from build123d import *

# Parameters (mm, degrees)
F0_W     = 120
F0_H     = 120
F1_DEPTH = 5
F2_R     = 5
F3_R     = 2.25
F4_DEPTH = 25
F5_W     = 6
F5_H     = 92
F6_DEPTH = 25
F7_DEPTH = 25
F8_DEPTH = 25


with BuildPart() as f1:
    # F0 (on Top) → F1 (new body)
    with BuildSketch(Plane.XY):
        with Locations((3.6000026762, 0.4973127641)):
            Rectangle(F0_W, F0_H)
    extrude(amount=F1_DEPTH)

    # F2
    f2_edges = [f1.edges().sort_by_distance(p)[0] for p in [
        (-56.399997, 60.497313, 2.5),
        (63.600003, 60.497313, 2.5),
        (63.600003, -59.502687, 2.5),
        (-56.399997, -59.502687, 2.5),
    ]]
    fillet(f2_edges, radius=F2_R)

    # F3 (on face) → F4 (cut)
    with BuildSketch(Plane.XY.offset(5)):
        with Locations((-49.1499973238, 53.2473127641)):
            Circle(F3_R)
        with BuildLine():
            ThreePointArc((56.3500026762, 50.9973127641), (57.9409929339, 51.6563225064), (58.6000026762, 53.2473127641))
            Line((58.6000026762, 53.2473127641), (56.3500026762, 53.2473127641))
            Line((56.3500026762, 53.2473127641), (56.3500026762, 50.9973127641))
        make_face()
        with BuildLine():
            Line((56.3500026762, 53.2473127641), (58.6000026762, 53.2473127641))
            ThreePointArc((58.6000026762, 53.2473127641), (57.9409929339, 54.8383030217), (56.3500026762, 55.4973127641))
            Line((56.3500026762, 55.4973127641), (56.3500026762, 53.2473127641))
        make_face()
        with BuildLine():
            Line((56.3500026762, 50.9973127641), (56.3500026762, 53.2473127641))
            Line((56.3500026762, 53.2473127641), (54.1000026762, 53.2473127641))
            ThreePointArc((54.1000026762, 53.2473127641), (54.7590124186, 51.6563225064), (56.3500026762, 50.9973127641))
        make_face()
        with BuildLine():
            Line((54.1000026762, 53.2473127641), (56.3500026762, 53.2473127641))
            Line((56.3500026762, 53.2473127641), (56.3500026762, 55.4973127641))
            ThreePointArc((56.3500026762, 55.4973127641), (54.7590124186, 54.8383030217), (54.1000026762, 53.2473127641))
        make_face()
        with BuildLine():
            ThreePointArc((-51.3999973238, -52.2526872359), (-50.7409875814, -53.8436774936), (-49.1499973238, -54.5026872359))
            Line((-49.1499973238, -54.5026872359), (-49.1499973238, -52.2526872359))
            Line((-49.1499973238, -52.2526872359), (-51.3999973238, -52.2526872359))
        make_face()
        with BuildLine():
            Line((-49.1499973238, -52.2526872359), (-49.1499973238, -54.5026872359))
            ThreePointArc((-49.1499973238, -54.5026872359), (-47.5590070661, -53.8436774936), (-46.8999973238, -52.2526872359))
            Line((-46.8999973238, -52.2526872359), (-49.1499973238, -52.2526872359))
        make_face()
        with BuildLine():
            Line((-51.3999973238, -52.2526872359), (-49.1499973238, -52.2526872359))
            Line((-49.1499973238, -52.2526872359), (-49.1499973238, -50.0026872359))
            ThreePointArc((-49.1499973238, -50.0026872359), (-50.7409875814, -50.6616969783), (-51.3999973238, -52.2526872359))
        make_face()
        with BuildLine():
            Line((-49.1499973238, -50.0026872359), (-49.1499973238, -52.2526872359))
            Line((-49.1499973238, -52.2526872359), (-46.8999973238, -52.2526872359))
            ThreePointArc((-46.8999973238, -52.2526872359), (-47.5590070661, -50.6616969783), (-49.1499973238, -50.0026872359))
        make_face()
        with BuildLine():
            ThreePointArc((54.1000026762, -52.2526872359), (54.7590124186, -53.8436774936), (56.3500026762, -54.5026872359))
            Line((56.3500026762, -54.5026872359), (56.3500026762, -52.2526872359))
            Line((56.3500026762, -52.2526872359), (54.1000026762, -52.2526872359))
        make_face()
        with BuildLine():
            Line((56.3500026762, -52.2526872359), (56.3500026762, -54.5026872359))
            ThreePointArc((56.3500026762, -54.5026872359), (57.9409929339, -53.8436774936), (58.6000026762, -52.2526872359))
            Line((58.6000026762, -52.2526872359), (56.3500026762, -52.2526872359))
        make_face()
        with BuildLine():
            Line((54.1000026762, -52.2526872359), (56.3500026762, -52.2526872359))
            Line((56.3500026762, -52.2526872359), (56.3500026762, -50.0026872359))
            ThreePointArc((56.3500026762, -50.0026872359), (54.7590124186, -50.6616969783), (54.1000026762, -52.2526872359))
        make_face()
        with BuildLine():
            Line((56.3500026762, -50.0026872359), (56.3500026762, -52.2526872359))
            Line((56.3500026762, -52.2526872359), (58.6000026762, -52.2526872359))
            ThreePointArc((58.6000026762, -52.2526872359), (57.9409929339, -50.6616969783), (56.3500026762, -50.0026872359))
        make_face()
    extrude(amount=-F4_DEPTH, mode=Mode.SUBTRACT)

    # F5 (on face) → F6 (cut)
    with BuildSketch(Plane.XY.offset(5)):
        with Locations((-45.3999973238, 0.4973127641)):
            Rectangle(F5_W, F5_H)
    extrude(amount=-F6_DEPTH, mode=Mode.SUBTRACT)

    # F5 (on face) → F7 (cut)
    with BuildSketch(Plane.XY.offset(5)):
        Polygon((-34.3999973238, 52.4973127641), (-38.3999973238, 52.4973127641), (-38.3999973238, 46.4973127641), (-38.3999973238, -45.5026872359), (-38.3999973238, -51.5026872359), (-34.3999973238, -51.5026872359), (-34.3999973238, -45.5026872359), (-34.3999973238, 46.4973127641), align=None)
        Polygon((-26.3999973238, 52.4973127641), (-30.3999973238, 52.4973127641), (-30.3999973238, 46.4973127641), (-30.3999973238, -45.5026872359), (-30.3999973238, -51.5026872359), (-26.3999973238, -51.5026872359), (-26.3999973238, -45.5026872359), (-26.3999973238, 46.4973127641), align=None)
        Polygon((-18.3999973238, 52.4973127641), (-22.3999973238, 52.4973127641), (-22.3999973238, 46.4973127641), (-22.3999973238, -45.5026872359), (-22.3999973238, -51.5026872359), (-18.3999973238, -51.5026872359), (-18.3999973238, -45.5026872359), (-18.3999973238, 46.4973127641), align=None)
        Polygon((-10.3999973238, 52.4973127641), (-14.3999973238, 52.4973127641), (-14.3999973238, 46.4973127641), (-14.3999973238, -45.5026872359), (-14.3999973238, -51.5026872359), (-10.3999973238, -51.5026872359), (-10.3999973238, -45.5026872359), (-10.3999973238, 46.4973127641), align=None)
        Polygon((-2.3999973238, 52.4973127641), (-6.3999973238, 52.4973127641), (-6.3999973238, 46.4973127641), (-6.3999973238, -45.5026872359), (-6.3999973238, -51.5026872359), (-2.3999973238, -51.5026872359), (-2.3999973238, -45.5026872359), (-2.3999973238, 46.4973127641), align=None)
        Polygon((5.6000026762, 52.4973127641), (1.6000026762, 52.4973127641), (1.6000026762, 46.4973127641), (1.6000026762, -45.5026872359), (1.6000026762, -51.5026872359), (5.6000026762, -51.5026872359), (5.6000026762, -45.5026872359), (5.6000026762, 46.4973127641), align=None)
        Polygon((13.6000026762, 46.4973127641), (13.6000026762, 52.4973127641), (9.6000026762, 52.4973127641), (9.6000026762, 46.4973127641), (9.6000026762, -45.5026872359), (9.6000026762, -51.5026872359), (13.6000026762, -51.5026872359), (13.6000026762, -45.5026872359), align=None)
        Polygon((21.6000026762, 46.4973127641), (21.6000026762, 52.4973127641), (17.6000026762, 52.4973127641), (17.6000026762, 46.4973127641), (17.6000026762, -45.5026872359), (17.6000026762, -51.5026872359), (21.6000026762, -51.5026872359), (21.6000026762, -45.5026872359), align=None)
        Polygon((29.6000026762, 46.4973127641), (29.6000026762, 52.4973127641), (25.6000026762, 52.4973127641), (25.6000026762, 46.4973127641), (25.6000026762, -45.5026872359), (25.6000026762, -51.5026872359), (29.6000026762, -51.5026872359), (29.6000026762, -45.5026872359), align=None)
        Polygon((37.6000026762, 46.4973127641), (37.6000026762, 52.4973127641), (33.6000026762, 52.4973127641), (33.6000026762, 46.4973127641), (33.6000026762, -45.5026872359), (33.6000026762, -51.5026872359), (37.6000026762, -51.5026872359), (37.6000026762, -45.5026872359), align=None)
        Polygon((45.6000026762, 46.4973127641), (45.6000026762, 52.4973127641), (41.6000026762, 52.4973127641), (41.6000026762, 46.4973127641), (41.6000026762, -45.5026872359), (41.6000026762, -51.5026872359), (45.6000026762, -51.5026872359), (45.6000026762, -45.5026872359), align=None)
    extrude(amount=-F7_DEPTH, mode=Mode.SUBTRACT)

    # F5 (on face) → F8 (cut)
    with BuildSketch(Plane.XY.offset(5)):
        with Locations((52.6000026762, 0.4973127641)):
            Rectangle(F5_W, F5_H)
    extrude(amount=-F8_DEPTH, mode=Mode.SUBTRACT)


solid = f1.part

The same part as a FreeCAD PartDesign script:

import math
import FreeCAD as App
import Part
import Sketcher

V = App.Vector
Q = App.Units.Quantity


def edges_at(feature, points):
    """Names of the edges that pass closest to the given points."""
    edges = feature.Shape.Edges
    near = lambda p: min(range(len(edges)), key=lambda i: edges[i].distToShape(Part.Vertex(*p))[0])
    return sorted({f"Edge{near(p) + 1}" for p in points})

doc = App.newDocument("Part")
body = doc.addObject("PartDesign::Body", "Body")

# Sketch on XY plane
sketch1 = body.newObject("Sketcher::SketchObject", "Sketch")
sketch1.AttachmentSupport = (doc.getObject("XY_Plane"), [""])
sketch1.MapMode = "FlatFace"
sketch1.addGeometry([
    Part.LineSegment(V(-56, 60, 0), V(-56, -60, 0)),
    Part.LineSegment(V(-56, -60, 0), V(64, -60, 0)),
    Part.LineSegment(V(64, -60, 0), V(64, 60, 0)),
    Part.LineSegment(V(64, 60, 0), V(-56, 60, 0)),
], False)
sketch1.addConstraint([
    Sketcher.Constraint("Coincident", 0, 2, 1, 1),
    Sketcher.Constraint("Coincident", 1, 2, 2, 1),
    Sketcher.Constraint("Coincident", 2, 2, 3, 1),
    Sketcher.Constraint("Coincident", 3, 2, 0, 1),
    Sketcher.Constraint("Vertical", 0),
    Sketcher.Constraint("Horizontal", 1),
    Sketcher.Constraint("Vertical", 2),
    Sketcher.Constraint("Horizontal", 3),
    Sketcher.Constraint("Equal", 3, 0),
    Sketcher.Constraint("DistanceX", 1, 1, 1, 2, Q("120 mm")),
    Sketcher.Constraint("DistanceX", 0, 2, -1, 1, Q("56.399997 mm")),
    Sketcher.Constraint("DistanceY", 0, 2, -1, 1, Q("59.502687 mm")),
])
pad1 = body.newObject("PartDesign::Pad", "Pad")
pad1.Profile = sketch1
pad1.Length = 5
doc.recompute()

fillet = body.newObject("PartDesign::Fillet", "Fillet")
fillet.Base = (pad1, edges_at(pad1, [
    (-56.4, 60.497, 2.5),
    (63.6, 60.497, 2.5),
    (63.6, -59.503, 2.5),
    (-56.4, -59.503, 2.5),
]))
fillet.Radius = 5

# Sketch on XY plane
sketch2 = body.newObject("Sketcher::SketchObject", "Sketch001")
sketch2.AttachmentSupport = (doc.getObject("XY_Plane"), [""])
sketch2.MapMode = "FlatFace"
sketch2.AttachmentOffset = App.Placement(V(0, 0, 5), App.Rotation())
sketch2.addGeometry([
    Part.Circle(V(-49.1, 53.2, 0), V(0, 0, 1), 2.2),  # 0
    Part.ArcOfCircle(Part.Circle(V(56.4, 53.2, 0), V(0, 0, 1), 2.2), math.radians(-90), math.radians(0)),  # 1
    Part.ArcOfCircle(Part.Circle(V(56.4, 53.2, 0), V(0, 0, 1), 2.2), math.radians(0), math.radians(90)),  # 2
    Part.ArcOfCircle(Part.Circle(V(56.4, 53.2, 0), V(0, 0, 1), 2.2), math.radians(90), math.radians(180)),  # 3
    Part.ArcOfCircle(Part.Circle(V(56.4, 53.2, 0), V(0, 0, 1), 2.2), math.radians(180), math.radians(270)),  # 4
    Part.ArcOfCircle(Part.Circle(V(-49.1, -52.3, 0), V(0, 0, 1), 2.2), math.radians(180), math.radians(270)),  # 5
    Part.ArcOfCircle(Part.Circle(V(-49.1, -52.3, 0), V(0, 0, 1), 2.2), math.radians(-90), math.radians(0)),  # 6
    Part.ArcOfCircle(Part.Circle(V(-49.1, -52.3, 0), V(0, 0, 1), 2.2), math.radians(0), math.radians(90)),  # 7
    Part.ArcOfCircle(Part.Circle(V(-49.1, -52.3, 0), V(0, 0, 1), 2.2), math.radians(90), math.radians(180)),  # 8
    Part.ArcOfCircle(Part.Circle(V(56.4, -52.3, 0), V(0, 0, 1), 2.2), math.radians(180), math.radians(270)),  # 9
    Part.ArcOfCircle(Part.Circle(V(56.4, -52.3, 0), V(0, 0, 1), 2.2), math.radians(-90), math.radians(0)),  # 10
    Part.ArcOfCircle(Part.Circle(V(56.4, -52.3, 0), V(0, 0, 1), 2.2), math.radians(0), math.radians(90)),  # 11
    Part.ArcOfCircle(Part.Circle(V(56.4, -52.3, 0), V(0, 0, 1), 2.2), math.radians(90), math.radians(180)),  # 12
], False)
sketch2.addConstraint([
    Sketcher.Constraint("Tangent", 1, 2, 2, 1),
    Sketcher.Constraint("Tangent", 2, 2, 3, 1),
    Sketcher.Constraint("Tangent", 3, 2, 4, 1),
    Sketcher.Constraint("Tangent", 4, 2, 1, 1),
    Sketcher.Constraint("Tangent", 5, 2, 6, 1),
    Sketcher.Constraint("Tangent", 6, 2, 7, 1),
    Sketcher.Constraint("Tangent", 7, 2, 8, 1),
    Sketcher.Constraint("Tangent", 8, 2, 5, 1),
    Sketcher.Constraint("Tangent", 9, 2, 10, 1),
    Sketcher.Constraint("Tangent", 10, 2, 11, 1),
    Sketcher.Constraint("Tangent", 11, 2, 12, 1),
    Sketcher.Constraint("Tangent", 12, 2, 9, 1),
    Sketcher.Constraint("Equal", 0, 1),
    Sketcher.Constraint("Equal", 1, 2),
    Sketcher.Constraint("Equal", 4, 5),
    Sketcher.Constraint("Equal", 5, 6),
    Sketcher.Constraint("Equal", 8, 9),
    Sketcher.Constraint("Equal", 9, 10),
    Sketcher.Constraint("Horizontal", 0, 3, 1, 3),
    Sketcher.Constraint("Horizontal", 8, 3, 9, 3),
    Sketcher.Constraint("Horizontal", 4, 3, 1, 2),
    Sketcher.Constraint("Horizontal", 1, 2, 3, 2),
    Sketcher.Constraint("Horizontal", 12, 3, 6, 2),
    Sketcher.Constraint("Horizontal", 6, 2, 8, 2),
    Sketcher.Constraint("Horizontal", 8, 2, 10, 2),
    Sketcher.Constraint("Horizontal", 10, 2, 12, 2),
    Sketcher.Constraint("Vertical", 0, 3, 5, 3),
    Sketcher.Constraint("Vertical", 4, 3, 9, 3),
    Sketcher.Constraint("Vertical", 12, 3, 2, 2),
    Sketcher.Constraint("Vertical", 2, 2, 4, 2),
    Sketcher.Constraint("Vertical", 8, 3, 5, 2),
    Sketcher.Constraint("Vertical", 5, 2, 7, 2),
    Sketcher.Constraint("Vertical", 4, 2, 9, 2),
    Sketcher.Constraint("Vertical", 9, 2, 11, 2),
    Sketcher.Constraint("Diameter", 0, Q("4.5 mm")),
    Sketcher.Constraint("DistanceX", 0, 3, 1, 3, Q("105.5 mm")),
    Sketcher.Constraint("DistanceY", 5, 3, 0, 3, Q("105.5 mm")),
    Sketcher.Constraint("DistanceX", 0, 3, -1, 1, Q("49.149997 mm")),
    Sketcher.Constraint("DistanceY", -1, 1, 0, 3, Q("53.247313 mm")),
])
pocket1 = body.newObject("PartDesign::Pocket", "Pocket")
pocket1.Profile = sketch2
pocket1.Length = 25

# Sketch on XY plane
sketch3 = body.newObject("Sketcher::SketchObject", "Sketch002")
sketch3.AttachmentSupport = (doc.getObject("XY_Plane"), [""])
sketch3.MapMode = "FlatFace"
sketch3.AttachmentOffset = App.Placement(V(0, 0, 5), App.Rotation())
sketch3.addGeometry([
    Part.LineSegment(V(-48, 46, 0), V(-48, -46, 0)),
    Part.LineSegment(V(-48, -46, 0), V(-42, -46, 0)),
    Part.LineSegment(V(-42, -46, 0), V(-42, 46, 0)),
    Part.LineSegment(V(-42, 46, 0), V(-48, 46, 0)),
], False)
sketch3.addConstraint([
    Sketcher.Constraint("Coincident", 0, 2, 1, 1),
    Sketcher.Constraint("Coincident", 1, 2, 2, 1),
    Sketcher.Constraint("Coincident", 2, 2, 3, 1),
    Sketcher.Constraint("Coincident", 3, 2, 0, 1),
    Sketcher.Constraint("Vertical", 0),
    Sketcher.Constraint("Horizontal", 1),
    Sketcher.Constraint("Vertical", 2),
    Sketcher.Constraint("Horizontal", 3),
    Sketcher.Constraint("DistanceX", 1, 1, 1, 2, Q("6 mm")),
    Sketcher.Constraint("DistanceY", 0, 2, 0, 1, Q("92 mm")),
    Sketcher.Constraint("DistanceX", 0, 2, -1, 1, Q("48.399997 mm")),
    Sketcher.Constraint("DistanceY", 0, 2, -1, 1, Q("45.502687 mm")),
])
pocket2 = body.newObject("PartDesign::Pocket", "Pocket001")
pocket2.Profile = sketch3
pocket2.Length = 25

# Sketch on XY plane
sketch4 = body.newObject("Sketcher::SketchObject", "Sketch003")
sketch4.AttachmentSupport = (doc.getObject("XY_Plane"), [""])
sketch4.MapMode = "FlatFace"
sketch4.AttachmentOffset = App.Placement(V(0, 0, 5), App.Rotation())
sketch4.addGeometry([
    Part.LineSegment(V(-34.4, 52.5, 0), V(-38.4, 52.5, 0)),  # 0
    Part.LineSegment(V(-38.4, 52.5, 0), V(-38.4, -51.5, 0)),  # 1
    Part.LineSegment(V(-38.4, -51.5, 0), V(-34.4, -51.5, 0)),  # 2
    Part.LineSegment(V(-34.4, -51.5, 0), V(-34.4, 52.5, 0)),  # 3
    Part.LineSegment(V(-26.4, 52.5, 0), V(-30.4, 52.5, 0)),  # 4
    Part.LineSegment(V(-30.4, 52.5, 0), V(-30.4, -51.5, 0)),  # 5
    Part.LineSegment(V(-30.4, -51.5, 0), V(-26.4, -51.5, 0)),  # 6
    Part.LineSegment(V(-26.4, -51.5, 0), V(-26.4, 52.5, 0)),  # 7
    Part.LineSegment(V(-18.4, 52.5, 0), V(-22.4, 52.5, 0)),  # 8
    Part.LineSegment(V(-22.4, 52.5, 0), V(-22.4, -51.5, 0)),  # 9
    Part.LineSegment(V(-22.4, -51.5, 0), V(-18.4, -51.5, 0)),  # 10
    Part.LineSegment(V(-18.4, -51.5, 0), V(-18.4, 52.5, 0)),  # 11
    Part.LineSegment(V(-10.4, 52.5, 0), V(-14.4, 52.5, 0)),  # 12
    Part.LineSegment(V(-14.4, 52.5, 0), V(-14.4, -51.5, 0)),  # 13
    Part.LineSegment(V(-14.4, -51.5, 0), V(-10.4, -51.5, 0)),  # 14
    Part.LineSegment(V(-10.4, -51.5, 0), V(-10.4, 52.5, 0)),  # 15
    Part.LineSegment(V(-2.4, 52.5, 0), V(-6.4, 52.5, 0)),  # 16
    Part.LineSegment(V(-6.4, 52.5, 0), V(-6.4, -51.5, 0)),  # 17
    Part.LineSegment(V(-6.4, -51.5, 0), V(-2.4, -51.5, 0)),  # 18
    Part.LineSegment(V(-2.4, -51.5, 0), V(-2.4, 52.5, 0)),  # 19
    Part.LineSegment(V(5.6, 52.5, 0), V(1.6, 52.5, 0)),  # 20
    Part.LineSegment(V(1.6, 52.5, 0), V(1.6, -51.5, 0)),  # 21
    Part.LineSegment(V(1.6, -51.5, 0), V(5.6, -51.5, 0)),  # 22
    Part.LineSegment(V(5.6, -51.5, 0), V(5.6, 52.5, 0)),  # 23
    Part.LineSegment(V(13.6, 52.5, 0), V(9.6, 52.5, 0)),  # 24
    Part.LineSegment(V(9.6, 52.5, 0), V(9.6, -51.5, 0)),  # 25
    Part.LineSegment(V(9.6, -51.5, 0), V(13.6, -51.5, 0)),  # 26
    Part.LineSegment(V(13.6, -51.5, 0), V(13.6, 52.5, 0)),  # 27
    Part.LineSegment(V(21.6, 52.5, 0), V(17.6, 52.5, 0)),  # 28
    Part.LineSegment(V(17.6, 52.5, 0), V(17.6, -51.5, 0)),  # 29
    Part.LineSegment(V(17.6, -51.5, 0), V(21.6, -51.5, 0)),  # 30
    Part.LineSegment(V(21.6, -51.5, 0), V(21.6, 52.5, 0)),  # 31
    Part.LineSegment(V(29.6, 52.5, 0), V(25.6, 52.5, 0)),  # 32
    Part.LineSegment(V(25.6, 52.5, 0), V(25.6, -51.5, 0)),  # 33
    Part.LineSegment(V(25.6, -51.5, 0), V(29.6, -51.5, 0)),  # 34
    Part.LineSegment(V(29.6, -51.5, 0), V(29.6, 52.5, 0)),  # 35
    Part.LineSegment(V(37.6, 52.5, 0), V(33.6, 52.5, 0)),  # 36
    Part.LineSegment(V(33.6, 52.5, 0), V(33.6, -51.5, 0)),  # 37
    Part.LineSegment(V(33.6, -51.5, 0), V(37.6, -51.5, 0)),  # 38
    Part.LineSegment(V(37.6, -51.5, 0), V(37.6, 52.5, 0)),  # 39
    Part.LineSegment(V(45.6, 52.5, 0), V(41.6, 52.5, 0)),  # 40
    Part.LineSegment(V(41.6, 52.5, 0), V(41.6, -51.5, 0)),  # 41
    Part.LineSegment(V(41.6, -51.5, 0), V(45.6, -51.5, 0)),  # 42
    Part.LineSegment(V(45.6, -51.5, 0), V(45.6, 52.5, 0)),  # 43
], False)
sketch4.addConstraint([
    Sketcher.Constraint("Coincident", 0, 2, 1, 1),
    Sketcher.Constraint("Coincident", 1, 2, 2, 1),
    Sketcher.Constraint("Coincident", 2, 2, 3, 1),
    Sketcher.Constraint("Coincident", 3, 2, 0, 1),
    Sketcher.Constraint("Coincident", 4, 2, 5, 1),
    Sketcher.Constraint("Coincident", 5, 2, 6, 1),
    Sketcher.Constraint("Coincident", 6, 2, 7, 1),
    Sketcher.Constraint("Coincident", 7, 2, 4, 1),
    Sketcher.Constraint("Coincident", 8, 2, 9, 1),
    Sketcher.Constraint("Coincident", 9, 2, 10, 1),
    Sketcher.Constraint("Coincident", 10, 2, 11, 1),
    Sketcher.Constraint("Coincident", 11, 2, 8, 1),
    Sketcher.Constraint("Coincident", 12, 2, 13, 1),
    Sketcher.Constraint("Coincident", 13, 2, 14, 1),
    Sketcher.Constraint("Coincident", 14, 2, 15, 1),
    Sketcher.Constraint("Coincident", 15, 2, 12, 1),
    Sketcher.Constraint("Coincident", 16, 2, 17, 1),
    Sketcher.Constraint("Coincident", 17, 2, 18, 1),
    Sketcher.Constraint("Coincident", 18, 2, 19, 1),
    Sketcher.Constraint("Coincident", 19, 2, 16, 1),
    Sketcher.Constraint("Coincident", 20, 2, 21, 1),
    Sketcher.Constraint("Coincident", 21, 2, 22, 1),
    Sketcher.Constraint("Coincident", 22, 2, 23, 1),
    Sketcher.Constraint("Coincident", 23, 2, 20, 1),
    Sketcher.Constraint("Coincident", 24, 2, 25, 1),
    Sketcher.Constraint("Coincident", 25, 2, 26, 1),
    Sketcher.Constraint("Coincident", 26, 2, 27, 1),
    Sketcher.Constraint("Coincident", 27, 2, 24, 1),
    Sketcher.Constraint("Coincident", 28, 2, 29, 1),
    Sketcher.Constraint("Coincident", 29, 2, 30, 1),
    Sketcher.Constraint("Coincident", 30, 2, 31, 1),
    Sketcher.Constraint("Coincident", 31, 2, 28, 1),
    Sketcher.Constraint("Coincident", 32, 2, 33, 1),
    Sketcher.Constraint("Coincident", 33, 2, 34, 1),
    Sketcher.Constraint("Coincident", 34, 2, 35, 1),
    Sketcher.Constraint("Coincident", 35, 2, 32, 1),
    Sketcher.Constraint("Coincident", 36, 2, 37, 1),
    Sketcher.Constraint("Coincident", 37, 2, 38, 1),
    Sketcher.Constraint("Coincident", 38, 2, 39, 1),
    Sketcher.Constraint("Coincident", 39, 2, 36, 1),
    Sketcher.Constraint("Coincident", 40, 2, 41, 1),
    Sketcher.Constraint("Coincident", 41, 2, 42, 1),
    Sketcher.Constraint("Coincident", 42, 2, 43, 1),
    Sketcher.Constraint("Coincident", 43, 2, 40, 1),
    Sketcher.Constraint("Horizontal", 0),
    Sketcher.Constraint("Vertical", 1),
    Sketcher.Constraint("Horizontal", 2),
    Sketcher.Constraint("Vertical", 3),
    Sketcher.Constraint("Horizontal", 4),
    Sketcher.Constraint("Vertical", 5),
    Sketcher.Constraint("Horizontal", 6),
    Sketcher.Constraint("Vertical", 7),
    Sketcher.Constraint("Horizontal", 8),
    Sketcher.Constraint("Vertical", 9),
    Sketcher.Constraint("Horizontal", 10),
    Sketcher.Constraint("Vertical", 11),
    Sketcher.Constraint("Horizontal", 12),
    Sketcher.Constraint("Vertical", 13),
    Sketcher.Constraint("Horizontal", 14),
    Sketcher.Constraint("Vertical", 15),
    Sketcher.Constraint("Horizontal", 16),
    Sketcher.Constraint("Vertical", 17),
    Sketcher.Constraint("Horizontal", 18),
    Sketcher.Constraint("Vertical", 19),
    Sketcher.Constraint("Horizontal", 20),
    Sketcher.Constraint("Vertical", 21),
    Sketcher.Constraint("Horizontal", 22),
    Sketcher.Constraint("Vertical", 23),
    Sketcher.Constraint("Horizontal", 24),
    Sketcher.Constraint("Vertical", 25),
    Sketcher.Constraint("Horizontal", 26),
    Sketcher.Constraint("Vertical", 27),
    Sketcher.Constraint("Horizontal", 28),
    Sketcher.Constraint("Vertical", 29),
    Sketcher.Constraint("Horizontal", 30),
    Sketcher.Constraint("Vertical", 31),
    Sketcher.Constraint("Horizontal", 32),
    Sketcher.Constraint("Vertical", 33),
    Sketcher.Constraint("Horizontal", 34),
    Sketcher.Constraint("Vertical", 35),
    Sketcher.Constraint("Horizontal", 36),
    Sketcher.Constraint("Vertical", 37),
    Sketcher.Constraint("Horizontal", 38),
    Sketcher.Constraint("Vertical", 39),
    Sketcher.Constraint("Horizontal", 40),
    Sketcher.Constraint("Vertical", 41),
    Sketcher.Constraint("Horizontal", 42),
    Sketcher.Constraint("Vertical", 43),
    Sketcher.Constraint("Horizontal", 3, 2, 4, 2),
    Sketcher.Constraint("Horizontal", 2, 2, 5, 2),
    Sketcher.Constraint("Horizontal", 7, 2, 8, 2),
    Sketcher.Constraint("Horizontal", 6, 2, 9, 2),
    Sketcher.Constraint("Horizontal", 11, 2, 12, 2),
    Sketcher.Constraint("Horizontal", 10, 2, 13, 2),
    Sketcher.Constraint("Horizontal", 15, 2, 16, 2),
    Sketcher.Constraint("Horizontal", 14, 2, 17, 2),
    Sketcher.Constraint("Horizontal", 19, 2, 20, 2),
    Sketcher.Constraint("Horizontal", 18, 2, 21, 2),
    Sketcher.Constraint("Horizontal", 23, 2, 24, 2),
    Sketcher.Constraint("Horizontal", 22, 2, 25, 2),
    Sketcher.Constraint("Horizontal", 27, 2, 28, 2),
    Sketcher.Constraint("Horizontal", 26, 2, 29, 2),
    Sketcher.Constraint("Horizontal", 31, 2, 32, 2),
    Sketcher.Constraint("Horizontal", 30, 2, 33, 2),
    Sketcher.Constraint("Horizontal", 35, 2, 36, 2),
    Sketcher.Constraint("Horizontal", 34, 2, 37, 2),
    Sketcher.Constraint("Horizontal", 39, 2, 40, 2),
    Sketcher.Constraint("Horizontal", 38, 2, 41, 2),
    Sketcher.Constraint("Equal", 2, 4),
    Sketcher.Constraint("Equal", 6, 8),
    Sketcher.Constraint("Equal", 10, 12),
    Sketcher.Constraint("Equal", 14, 16),
    Sketcher.Constraint("Equal", 18, 20),
    Sketcher.Constraint("Equal", 22, 24),
    Sketcher.Constraint("Equal", 26, 28),
    Sketcher.Constraint("Equal", 30, 32),
    Sketcher.Constraint("Equal", 34, 36),
    Sketcher.Constraint("Equal", 38, 40),
    Sketcher.Constraint("DistanceX", 0, 2, 0, 1, Q("4 mm")),
    Sketcher.Constraint("DistanceY", 1, 2, 1, 1, Q("104 mm")),
    Sketcher.Constraint("DistanceX", 3, 2, 4, 2, Q("4 mm")),
    Sketcher.Constraint("DistanceX", 7, 2, 8, 2, Q("4 mm")),
    Sketcher.Constraint("DistanceX", 11, 2, 12, 2, Q("4 mm")),
    Sketcher.Constraint("DistanceX", 15, 2, 16, 2, Q("4 mm")),
    Sketcher.Constraint("DistanceX", 19, 2, 20, 2, Q("4 mm")),
    Sketcher.Constraint("DistanceX", 23, 2, 24, 2, Q("4 mm")),
    Sketcher.Constraint("DistanceX", 27, 2, 28, 2, Q("4 mm")),
    Sketcher.Constraint("DistanceX", 31, 2, 32, 2, Q("4 mm")),
    Sketcher.Constraint("DistanceX", 35, 2, 36, 2, Q("4 mm")),
    Sketcher.Constraint("DistanceX", 39, 2, 40, 2, Q("4 mm")),
    Sketcher.Constraint("DistanceX", 0, 2, -1, 1, Q("38.399997 mm")),
    Sketcher.Constraint("DistanceY", -1, 1, 0, 2, Q("52.497313 mm")),
])
pocket3 = body.newObject("PartDesign::Pocket", "Pocket002")
pocket3.Profile = sketch4
pocket3.Length = 25

# Sketch on XY plane
sketch5 = body.newObject("Sketcher::SketchObject", "Sketch004")
sketch5.AttachmentSupport = (doc.getObject("XY_Plane"), [""])
sketch5.MapMode = "FlatFace"
sketch5.AttachmentOffset = App.Placement(V(0, 0, 5), App.Rotation())
sketch5.addGeometry([
    Part.LineSegment(V(50, 46, 0), V(50, -46, 0)),
    Part.LineSegment(V(50, -46, 0), V(56, -46, 0)),
    Part.LineSegment(V(56, -46, 0), V(56, 46, 0)),
    Part.LineSegment(V(56, 46, 0), V(50, 46, 0)),
], False)
sketch5.addConstraint([
    Sketcher.Constraint("Coincident", 0, 2, 1, 1),
    Sketcher.Constraint("Coincident", 1, 2, 2, 1),
    Sketcher.Constraint("Coincident", 2, 2, 3, 1),
    Sketcher.Constraint("Coincident", 3, 2, 0, 1),
    Sketcher.Constraint("Vertical", 0),
    Sketcher.Constraint("Horizontal", 1),
    Sketcher.Constraint("Vertical", 2),
    Sketcher.Constraint("Horizontal", 3),
    Sketcher.Constraint("DistanceX", 1, 1, 1, 2, Q("6 mm")),
    Sketcher.Constraint("DistanceY", 0, 2, 0, 1, Q("92 mm")),
    Sketcher.Constraint("DistanceX", -1, 1, 0, 2, Q("49.600003 mm")),
    Sketcher.Constraint("DistanceY", 0, 2, -1, 1, Q("45.502687 mm")),
])
pocket4 = body.newObject("PartDesign::Pocket", "Pocket003")
pocket4.Profile = sketch5
pocket4.Length = 25

doc.recompute()
